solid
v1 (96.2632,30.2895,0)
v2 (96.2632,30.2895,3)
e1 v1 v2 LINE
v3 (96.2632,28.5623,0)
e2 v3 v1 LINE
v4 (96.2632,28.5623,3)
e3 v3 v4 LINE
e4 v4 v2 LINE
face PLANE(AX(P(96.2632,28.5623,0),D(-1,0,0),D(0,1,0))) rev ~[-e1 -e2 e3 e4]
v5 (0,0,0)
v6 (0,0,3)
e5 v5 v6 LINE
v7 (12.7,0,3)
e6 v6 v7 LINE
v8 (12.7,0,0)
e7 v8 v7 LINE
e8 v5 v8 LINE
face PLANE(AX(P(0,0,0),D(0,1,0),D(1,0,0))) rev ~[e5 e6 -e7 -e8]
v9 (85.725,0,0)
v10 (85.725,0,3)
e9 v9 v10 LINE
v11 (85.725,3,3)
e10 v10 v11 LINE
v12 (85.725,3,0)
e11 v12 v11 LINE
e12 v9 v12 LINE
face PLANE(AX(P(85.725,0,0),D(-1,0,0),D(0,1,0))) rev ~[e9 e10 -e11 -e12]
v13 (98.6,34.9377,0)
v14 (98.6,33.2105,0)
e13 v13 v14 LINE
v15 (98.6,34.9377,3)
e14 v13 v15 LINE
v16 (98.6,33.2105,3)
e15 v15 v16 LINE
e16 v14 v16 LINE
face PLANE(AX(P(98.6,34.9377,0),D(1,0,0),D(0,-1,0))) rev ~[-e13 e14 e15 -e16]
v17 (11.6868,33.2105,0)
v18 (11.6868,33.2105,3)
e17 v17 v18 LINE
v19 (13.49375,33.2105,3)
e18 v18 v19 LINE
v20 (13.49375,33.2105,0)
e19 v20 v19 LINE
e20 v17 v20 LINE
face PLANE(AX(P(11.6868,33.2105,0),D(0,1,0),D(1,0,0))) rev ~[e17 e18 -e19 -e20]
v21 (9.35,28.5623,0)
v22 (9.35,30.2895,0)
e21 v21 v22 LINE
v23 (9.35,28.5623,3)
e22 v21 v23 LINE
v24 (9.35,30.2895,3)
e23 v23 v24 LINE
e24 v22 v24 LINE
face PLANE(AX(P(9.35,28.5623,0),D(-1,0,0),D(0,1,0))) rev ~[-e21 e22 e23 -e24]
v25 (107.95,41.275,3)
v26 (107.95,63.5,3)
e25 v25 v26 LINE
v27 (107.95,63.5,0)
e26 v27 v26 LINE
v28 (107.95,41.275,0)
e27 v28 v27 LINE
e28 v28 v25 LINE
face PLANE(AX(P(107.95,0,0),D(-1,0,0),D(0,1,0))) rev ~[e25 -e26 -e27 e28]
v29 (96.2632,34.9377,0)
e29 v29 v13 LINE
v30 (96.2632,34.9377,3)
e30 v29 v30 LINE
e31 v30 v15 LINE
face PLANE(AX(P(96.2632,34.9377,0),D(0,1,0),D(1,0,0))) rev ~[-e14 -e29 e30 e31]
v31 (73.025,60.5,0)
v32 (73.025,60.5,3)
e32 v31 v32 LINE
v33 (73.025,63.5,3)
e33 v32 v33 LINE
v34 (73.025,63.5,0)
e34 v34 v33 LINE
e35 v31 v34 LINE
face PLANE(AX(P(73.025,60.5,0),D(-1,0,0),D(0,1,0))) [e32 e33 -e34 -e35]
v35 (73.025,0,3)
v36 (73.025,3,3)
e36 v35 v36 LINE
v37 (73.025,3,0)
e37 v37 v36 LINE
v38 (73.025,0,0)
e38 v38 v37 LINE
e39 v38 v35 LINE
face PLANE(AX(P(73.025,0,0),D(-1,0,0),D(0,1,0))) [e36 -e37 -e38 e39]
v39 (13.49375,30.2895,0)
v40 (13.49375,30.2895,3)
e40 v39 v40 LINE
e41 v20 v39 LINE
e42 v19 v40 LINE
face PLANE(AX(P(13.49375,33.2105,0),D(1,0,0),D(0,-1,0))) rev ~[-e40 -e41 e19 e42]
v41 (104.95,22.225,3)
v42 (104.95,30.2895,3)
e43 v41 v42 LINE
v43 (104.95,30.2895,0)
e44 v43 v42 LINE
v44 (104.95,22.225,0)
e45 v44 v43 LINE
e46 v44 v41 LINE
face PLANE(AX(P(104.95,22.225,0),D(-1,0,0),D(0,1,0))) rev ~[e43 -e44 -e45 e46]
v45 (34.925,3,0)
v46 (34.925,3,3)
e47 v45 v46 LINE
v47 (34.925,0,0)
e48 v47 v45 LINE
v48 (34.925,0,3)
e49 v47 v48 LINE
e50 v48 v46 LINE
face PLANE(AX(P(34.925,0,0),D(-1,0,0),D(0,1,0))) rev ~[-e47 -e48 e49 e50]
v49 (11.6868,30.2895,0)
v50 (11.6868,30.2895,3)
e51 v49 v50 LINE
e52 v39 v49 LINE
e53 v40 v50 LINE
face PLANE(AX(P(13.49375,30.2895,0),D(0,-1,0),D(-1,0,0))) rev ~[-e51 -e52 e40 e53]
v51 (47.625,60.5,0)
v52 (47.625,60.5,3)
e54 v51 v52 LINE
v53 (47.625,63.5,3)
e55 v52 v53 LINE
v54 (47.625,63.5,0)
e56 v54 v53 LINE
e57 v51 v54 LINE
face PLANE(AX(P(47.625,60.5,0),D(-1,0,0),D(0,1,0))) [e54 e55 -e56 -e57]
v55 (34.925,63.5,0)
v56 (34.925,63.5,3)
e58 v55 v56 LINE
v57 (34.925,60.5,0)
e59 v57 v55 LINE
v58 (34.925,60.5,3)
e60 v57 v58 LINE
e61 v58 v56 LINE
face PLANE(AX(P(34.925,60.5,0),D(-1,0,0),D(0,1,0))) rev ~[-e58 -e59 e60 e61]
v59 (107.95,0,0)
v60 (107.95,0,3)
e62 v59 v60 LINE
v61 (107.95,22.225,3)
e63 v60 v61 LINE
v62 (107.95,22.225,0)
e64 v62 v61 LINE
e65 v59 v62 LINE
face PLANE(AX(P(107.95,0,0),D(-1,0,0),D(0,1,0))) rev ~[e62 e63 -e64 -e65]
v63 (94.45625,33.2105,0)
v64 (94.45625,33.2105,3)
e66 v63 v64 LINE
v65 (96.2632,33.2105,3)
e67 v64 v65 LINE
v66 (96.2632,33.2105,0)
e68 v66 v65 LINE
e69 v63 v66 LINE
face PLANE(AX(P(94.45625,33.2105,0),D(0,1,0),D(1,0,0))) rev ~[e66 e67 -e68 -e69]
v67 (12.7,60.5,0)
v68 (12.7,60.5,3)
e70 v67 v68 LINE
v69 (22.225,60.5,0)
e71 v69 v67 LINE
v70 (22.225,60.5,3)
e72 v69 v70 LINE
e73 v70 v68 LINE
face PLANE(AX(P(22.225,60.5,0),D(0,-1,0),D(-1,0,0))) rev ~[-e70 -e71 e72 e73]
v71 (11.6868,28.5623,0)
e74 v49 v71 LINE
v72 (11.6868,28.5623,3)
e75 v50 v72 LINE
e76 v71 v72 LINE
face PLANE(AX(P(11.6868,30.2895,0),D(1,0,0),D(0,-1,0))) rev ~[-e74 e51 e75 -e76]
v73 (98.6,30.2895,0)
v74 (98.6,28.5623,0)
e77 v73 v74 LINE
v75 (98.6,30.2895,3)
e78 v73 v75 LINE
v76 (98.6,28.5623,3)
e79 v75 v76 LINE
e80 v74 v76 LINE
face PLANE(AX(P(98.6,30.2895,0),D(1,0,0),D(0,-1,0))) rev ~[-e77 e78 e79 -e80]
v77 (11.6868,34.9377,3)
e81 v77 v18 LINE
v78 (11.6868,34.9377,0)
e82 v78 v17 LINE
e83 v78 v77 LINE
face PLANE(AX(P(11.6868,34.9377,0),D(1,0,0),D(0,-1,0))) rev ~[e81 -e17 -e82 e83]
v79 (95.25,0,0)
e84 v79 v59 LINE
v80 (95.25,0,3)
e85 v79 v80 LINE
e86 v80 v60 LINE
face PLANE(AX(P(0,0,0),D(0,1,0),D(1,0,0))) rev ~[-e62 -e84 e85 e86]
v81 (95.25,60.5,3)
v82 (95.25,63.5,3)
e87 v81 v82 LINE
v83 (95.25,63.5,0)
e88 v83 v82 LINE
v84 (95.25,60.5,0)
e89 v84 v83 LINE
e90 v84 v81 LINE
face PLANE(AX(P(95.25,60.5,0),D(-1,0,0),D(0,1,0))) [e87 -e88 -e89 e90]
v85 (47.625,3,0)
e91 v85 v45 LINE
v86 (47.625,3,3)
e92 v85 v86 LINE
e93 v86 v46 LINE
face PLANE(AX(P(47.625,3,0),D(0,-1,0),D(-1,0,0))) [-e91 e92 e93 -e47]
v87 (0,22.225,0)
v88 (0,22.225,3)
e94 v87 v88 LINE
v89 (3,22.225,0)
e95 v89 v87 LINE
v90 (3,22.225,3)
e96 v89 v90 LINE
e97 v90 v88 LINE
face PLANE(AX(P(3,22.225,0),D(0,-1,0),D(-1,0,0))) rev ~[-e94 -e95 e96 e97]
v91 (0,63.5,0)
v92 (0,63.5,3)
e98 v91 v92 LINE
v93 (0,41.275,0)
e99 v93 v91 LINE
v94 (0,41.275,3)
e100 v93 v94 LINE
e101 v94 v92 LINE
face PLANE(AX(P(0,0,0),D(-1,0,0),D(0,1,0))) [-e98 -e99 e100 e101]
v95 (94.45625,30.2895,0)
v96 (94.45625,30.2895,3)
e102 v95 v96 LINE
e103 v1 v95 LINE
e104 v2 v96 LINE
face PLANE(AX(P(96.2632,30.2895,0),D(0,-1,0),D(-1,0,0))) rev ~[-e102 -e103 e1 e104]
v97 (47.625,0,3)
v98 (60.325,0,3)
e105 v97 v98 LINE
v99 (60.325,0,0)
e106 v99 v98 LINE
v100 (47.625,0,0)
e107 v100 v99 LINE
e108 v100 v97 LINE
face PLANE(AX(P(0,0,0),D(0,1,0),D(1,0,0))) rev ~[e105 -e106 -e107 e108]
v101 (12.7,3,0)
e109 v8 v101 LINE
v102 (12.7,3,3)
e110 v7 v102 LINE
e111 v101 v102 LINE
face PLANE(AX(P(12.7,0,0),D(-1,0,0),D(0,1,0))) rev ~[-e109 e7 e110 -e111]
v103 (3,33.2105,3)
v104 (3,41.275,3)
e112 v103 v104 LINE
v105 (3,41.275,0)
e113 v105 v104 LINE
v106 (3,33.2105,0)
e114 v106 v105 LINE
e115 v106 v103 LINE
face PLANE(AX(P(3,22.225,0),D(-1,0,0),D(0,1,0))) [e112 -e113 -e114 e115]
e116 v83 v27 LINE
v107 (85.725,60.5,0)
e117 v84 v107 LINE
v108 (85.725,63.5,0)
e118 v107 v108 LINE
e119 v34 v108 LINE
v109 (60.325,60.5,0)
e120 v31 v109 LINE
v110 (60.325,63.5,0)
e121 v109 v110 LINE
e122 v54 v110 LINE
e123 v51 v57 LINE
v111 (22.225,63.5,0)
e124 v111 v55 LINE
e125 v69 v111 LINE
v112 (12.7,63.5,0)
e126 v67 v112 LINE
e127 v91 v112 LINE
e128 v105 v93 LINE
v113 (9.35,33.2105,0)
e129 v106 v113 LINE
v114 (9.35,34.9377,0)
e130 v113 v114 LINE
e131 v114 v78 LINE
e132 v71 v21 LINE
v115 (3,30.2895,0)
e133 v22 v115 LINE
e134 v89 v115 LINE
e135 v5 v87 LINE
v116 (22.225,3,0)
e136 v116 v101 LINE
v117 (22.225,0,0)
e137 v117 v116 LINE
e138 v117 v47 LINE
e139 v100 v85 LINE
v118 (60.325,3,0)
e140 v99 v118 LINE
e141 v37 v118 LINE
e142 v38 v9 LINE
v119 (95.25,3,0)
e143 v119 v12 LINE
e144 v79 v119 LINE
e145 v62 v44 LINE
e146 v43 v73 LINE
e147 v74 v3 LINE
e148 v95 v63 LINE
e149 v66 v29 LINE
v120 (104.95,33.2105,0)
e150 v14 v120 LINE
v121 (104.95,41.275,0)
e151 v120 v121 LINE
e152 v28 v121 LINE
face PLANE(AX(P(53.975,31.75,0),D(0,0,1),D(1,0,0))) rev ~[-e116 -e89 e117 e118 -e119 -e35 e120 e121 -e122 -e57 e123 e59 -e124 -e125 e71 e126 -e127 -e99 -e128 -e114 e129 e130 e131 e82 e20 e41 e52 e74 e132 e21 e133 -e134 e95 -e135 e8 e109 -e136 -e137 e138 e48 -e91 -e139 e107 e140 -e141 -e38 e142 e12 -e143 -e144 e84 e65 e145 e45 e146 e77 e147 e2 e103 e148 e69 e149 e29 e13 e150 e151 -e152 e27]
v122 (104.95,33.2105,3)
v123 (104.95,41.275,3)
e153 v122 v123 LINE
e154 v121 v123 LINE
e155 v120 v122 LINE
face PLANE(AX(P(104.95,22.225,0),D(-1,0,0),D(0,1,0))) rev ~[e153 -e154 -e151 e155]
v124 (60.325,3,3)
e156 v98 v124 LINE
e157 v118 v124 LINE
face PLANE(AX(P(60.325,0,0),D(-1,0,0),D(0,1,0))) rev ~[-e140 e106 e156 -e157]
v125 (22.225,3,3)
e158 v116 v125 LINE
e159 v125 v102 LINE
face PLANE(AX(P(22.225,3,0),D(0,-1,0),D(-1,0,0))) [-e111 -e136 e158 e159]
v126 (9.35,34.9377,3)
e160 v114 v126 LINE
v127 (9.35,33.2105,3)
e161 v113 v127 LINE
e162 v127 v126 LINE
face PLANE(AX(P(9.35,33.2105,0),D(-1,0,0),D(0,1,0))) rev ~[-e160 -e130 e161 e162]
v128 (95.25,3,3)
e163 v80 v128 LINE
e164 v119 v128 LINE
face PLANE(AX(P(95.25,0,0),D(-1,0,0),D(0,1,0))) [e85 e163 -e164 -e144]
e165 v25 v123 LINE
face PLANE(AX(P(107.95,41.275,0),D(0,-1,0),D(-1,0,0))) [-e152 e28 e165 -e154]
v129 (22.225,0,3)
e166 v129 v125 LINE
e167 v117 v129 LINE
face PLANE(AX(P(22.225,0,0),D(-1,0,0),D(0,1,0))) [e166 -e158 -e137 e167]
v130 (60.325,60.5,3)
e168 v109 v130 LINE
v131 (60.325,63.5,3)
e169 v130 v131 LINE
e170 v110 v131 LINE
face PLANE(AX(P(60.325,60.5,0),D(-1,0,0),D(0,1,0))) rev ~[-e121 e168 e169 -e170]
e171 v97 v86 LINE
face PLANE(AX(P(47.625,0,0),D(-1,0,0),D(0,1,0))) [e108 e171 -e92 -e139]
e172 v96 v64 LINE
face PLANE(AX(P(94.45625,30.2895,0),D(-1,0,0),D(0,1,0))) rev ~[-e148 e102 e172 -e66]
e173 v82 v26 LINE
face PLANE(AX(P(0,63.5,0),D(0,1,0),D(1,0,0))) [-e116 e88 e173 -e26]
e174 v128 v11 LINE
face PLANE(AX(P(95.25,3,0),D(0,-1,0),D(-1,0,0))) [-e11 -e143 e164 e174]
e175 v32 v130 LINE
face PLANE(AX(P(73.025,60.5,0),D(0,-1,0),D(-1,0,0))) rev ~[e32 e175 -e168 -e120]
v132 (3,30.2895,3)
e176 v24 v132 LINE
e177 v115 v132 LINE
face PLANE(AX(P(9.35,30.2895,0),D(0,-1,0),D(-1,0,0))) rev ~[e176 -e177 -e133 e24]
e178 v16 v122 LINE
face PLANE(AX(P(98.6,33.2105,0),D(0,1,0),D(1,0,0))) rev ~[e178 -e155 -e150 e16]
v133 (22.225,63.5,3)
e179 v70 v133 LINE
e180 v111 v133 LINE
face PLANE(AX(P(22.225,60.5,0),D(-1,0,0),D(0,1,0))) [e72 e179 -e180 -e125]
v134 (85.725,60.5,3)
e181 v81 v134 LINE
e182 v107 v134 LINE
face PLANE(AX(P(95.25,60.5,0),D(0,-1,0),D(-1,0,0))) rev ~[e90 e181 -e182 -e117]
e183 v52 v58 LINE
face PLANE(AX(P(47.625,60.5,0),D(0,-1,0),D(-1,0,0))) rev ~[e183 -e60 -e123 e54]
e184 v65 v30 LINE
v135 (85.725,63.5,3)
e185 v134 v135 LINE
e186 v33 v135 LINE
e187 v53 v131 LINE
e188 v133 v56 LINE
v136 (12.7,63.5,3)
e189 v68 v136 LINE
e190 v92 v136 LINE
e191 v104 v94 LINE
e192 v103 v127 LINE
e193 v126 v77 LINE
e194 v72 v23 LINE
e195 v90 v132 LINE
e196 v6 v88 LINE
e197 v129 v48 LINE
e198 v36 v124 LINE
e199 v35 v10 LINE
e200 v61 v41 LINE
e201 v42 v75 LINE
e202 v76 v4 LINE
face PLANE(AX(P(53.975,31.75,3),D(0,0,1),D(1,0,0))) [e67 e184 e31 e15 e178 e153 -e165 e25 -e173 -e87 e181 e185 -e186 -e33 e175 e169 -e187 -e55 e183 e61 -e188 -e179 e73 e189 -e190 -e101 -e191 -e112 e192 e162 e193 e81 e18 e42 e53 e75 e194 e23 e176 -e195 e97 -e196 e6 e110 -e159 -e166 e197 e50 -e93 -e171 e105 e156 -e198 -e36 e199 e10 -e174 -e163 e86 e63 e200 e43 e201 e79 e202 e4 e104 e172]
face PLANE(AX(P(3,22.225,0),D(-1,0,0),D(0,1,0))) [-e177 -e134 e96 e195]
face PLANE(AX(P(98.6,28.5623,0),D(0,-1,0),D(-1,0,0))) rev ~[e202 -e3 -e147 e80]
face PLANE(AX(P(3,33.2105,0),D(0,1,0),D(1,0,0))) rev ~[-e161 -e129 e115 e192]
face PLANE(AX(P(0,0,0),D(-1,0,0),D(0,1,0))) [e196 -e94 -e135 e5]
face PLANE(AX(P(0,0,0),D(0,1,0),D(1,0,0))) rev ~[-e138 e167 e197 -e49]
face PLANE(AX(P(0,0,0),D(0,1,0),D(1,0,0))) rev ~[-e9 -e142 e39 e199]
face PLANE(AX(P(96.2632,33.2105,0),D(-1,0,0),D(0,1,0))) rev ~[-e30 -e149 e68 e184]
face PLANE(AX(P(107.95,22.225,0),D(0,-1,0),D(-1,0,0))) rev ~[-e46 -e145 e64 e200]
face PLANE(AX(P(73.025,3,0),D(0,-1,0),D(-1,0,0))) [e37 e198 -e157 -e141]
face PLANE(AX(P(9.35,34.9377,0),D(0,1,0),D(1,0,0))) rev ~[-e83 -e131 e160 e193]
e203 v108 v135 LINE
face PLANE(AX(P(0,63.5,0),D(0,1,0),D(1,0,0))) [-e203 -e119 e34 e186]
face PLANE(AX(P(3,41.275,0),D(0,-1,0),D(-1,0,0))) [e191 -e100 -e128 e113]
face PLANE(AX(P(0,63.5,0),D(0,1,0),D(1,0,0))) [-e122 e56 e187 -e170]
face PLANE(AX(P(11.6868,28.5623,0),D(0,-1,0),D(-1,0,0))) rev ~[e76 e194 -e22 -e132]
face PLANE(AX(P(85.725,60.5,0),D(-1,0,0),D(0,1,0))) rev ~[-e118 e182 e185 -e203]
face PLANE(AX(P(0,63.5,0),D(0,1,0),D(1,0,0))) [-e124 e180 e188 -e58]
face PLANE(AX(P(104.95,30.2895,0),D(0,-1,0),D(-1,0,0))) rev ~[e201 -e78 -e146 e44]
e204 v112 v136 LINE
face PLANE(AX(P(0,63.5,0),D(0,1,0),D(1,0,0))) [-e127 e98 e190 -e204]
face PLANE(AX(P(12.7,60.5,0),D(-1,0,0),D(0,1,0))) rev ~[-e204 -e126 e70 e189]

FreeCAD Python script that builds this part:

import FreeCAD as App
import Part
import Sketcher

V = App.Vector
Q = App.Units.Quantity

doc = App.newDocument("Part")
body = doc.addObject("PartDesign::Body", "Body")

sketch1 = doc.addObject("Sketcher::SketchObject", "Sketch")
body.addObject(sketch1)
sketch1.AttachmentSupport = (doc.XY_Plane, [""])
sketch1.MapMode = "FlatFace"
sketch1.addGeometry([
    Part.LineSegment(V(0, 64, 0), V(0, 0, 0)),
    Part.LineSegment(V(0, 0, 0), V(108, 0, 0)),
    Part.LineSegment(V(108, 0, 0), V(108, 64, 0)),
    Part.LineSegment(V(108, 64, 0), V(0, 64, 0)),
], False)
sketch1.addConstraint([
    Sketcher.Constraint("Coincident", 0, 2, 1, 1),
    Sketcher.Constraint("Coincident", 1, 2, 2, 1),
    Sketcher.Constraint("Coincident", 2, 2, 3, 1),
    Sketcher.Constraint("Coincident", 3, 2, 0, 1),
    Sketcher.Constraint("Vertical", 0),
    Sketcher.Constraint("Horizontal", 1),
    Sketcher.Constraint("Vertical", 2),
    Sketcher.Constraint("Horizontal", 3),
    Sketcher.Constraint("Coincident", 0, 2, -1, 1),
    Sketcher.Constraint("DistanceY", 0, 2, 0, 1, Q("2.5 in")),
    Sketcher.Constraint("DistanceX", 1, 1, 1, 2, Q("4.25 in")),
])
pad1 = doc.addObject("PartDesign::Pad", "Pad")
body.addObject(pad1)
pad1.Profile = sketch1
pad1.Length = 3

sketch2 = doc.addObject("Sketcher::SketchObject", "Sketch001")
body.addObject(sketch2)
sketch2.AttachmentSupport = (doc.XY_Plane, [""])
sketch2.MapMode = "FlatFace"
sketch2.addGeometry([
    Part.LineSegment(V(73, 3, 0), V(73, 0, 0)),
    Part.LineSegment(V(73, 0, 0), V(60.3, 0, 0)),
    Part.LineSegment(V(60.3, 0, 0), V(60.3, 3, 0)),
    Part.LineSegment(V(60.3, 3, 0), V(73, 3, 0)),
], False)
sketch2.addConstraint([
    Sketcher.Constraint("Coincident", 0, 2, 1, 1),
    Sketcher.Constraint("Coincident", 1, 2, 2, 1),
    Sketcher.Constraint("Coincident", 2, 2, 3, 1),
    Sketcher.Constraint("Coincident", 3, 2, 0, 1),
    Sketcher.Constraint("Vertical", 0),
    Sketcher.Constraint("Horizontal", 1),
    Sketcher.Constraint("Vertical", 2),
    Sketcher.Constraint("Horizontal", 3),
    Sketcher.Constraint("PointOnObject", 0, 2, -1),
    Sketcher.Constraint("DistanceX", 1, 2, 1, 1, Q("0.5 in")),
    Sketcher.Constraint("DistanceX", -1, 1, 0, 2, Q("2.875 in")),
    Sketcher.Constraint("DistanceY", 0, 2, 0, 1, Q("3 mm")),
])
pocket1 = doc.addObject("PartDesign::Pocket", "Pocket")
body.addObject(pocket1)
pocket1.Profile = sketch2
pocket1.Type = "UpToFirst"
pocket1.Reversed = True

sketch3 = doc.addObject("Sketcher::SketchObject", "Sketch002")
body.addObject(sketch3)
sketch3.AttachmentSupport = (doc.XY_Plane, [""])
sketch3.MapMode = "FlatFace"
sketch3.addGeometry([
    Part.LineSegment(V(22.2, 3, 0), V(22.2, 0, 0)),
    Part.LineSegment(V(22.2, 0, 0), V(12.7, 0, 0)),
    Part.LineSegment(V(12.7, 0, 0), V(12.7, 3, 0)),
    Part.LineSegment(V(12.7, 3, 0), V(22.2, 3, 0)),
], False)
sketch3.addConstraint([
    Sketcher.Constraint("Coincident", 0, 2, 1, 1),
    Sketcher.Constraint("Coincident", 1, 2, 2, 1),
    Sketcher.Constraint("Coincident", 2, 2, 3, 1),
    Sketcher.Constraint("Coincident", 3, 2, 0, 1),
    Sketcher.Constraint("Vertical", 0),
    Sketcher.Constraint("Horizontal", 1),
    Sketcher.Constraint("Vertical", 2),
    Sketcher.Constraint("Horizontal", 3),
    Sketcher.Constraint("PointOnObject", 0, 2, -1),
    Sketcher.Constraint("DistanceX", -1, 1, 1, 2, Q("0.5 in")),
    Sketcher.Constraint("DistanceX", 1, 2, 1, 1, Q("0.375 in")),
    Sketcher.Constraint("DistanceY", 0, 2, 0, 1, Q("3 mm")),
])
pocket2 = doc.addObject("PartDesign::Pocket", "Pocket001")
body.addObject(pocket2)
pocket2.Profile = sketch3
pocket2.Type = "UpToFirst"
pocket2.Reversed = True

sketch4 = doc.addObject("Sketcher::SketchObject", "Sketch003")
body.addObject(sketch4)
sketch4.AttachmentSupport = (doc.XY_Plane, [""])
sketch4.MapMode = "FlatFace"
sketch4.addGeometry([
    Part.LineSegment(V(95.2, 3, 0), V(95.2, 0, 0)),
    Part.LineSegment(V(95.2, 0, 0), V(85.7, 0, 0)),
    Part.LineSegment(V(85.7, 0, 0), V(85.7, 3, 0)),
    Part.LineSegment(V(85.7, 3, 0), V(95.2, 3, 0)),
], False)
sketch4.addConstraint([
    Sketcher.Constraint("Coincident", 0, 2, 1, 1),
    Sketcher.Constraint("Coincident", 1, 2, 2, 1),
    Sketcher.Constraint("Coincident", 2, 2, 3, 1),
    Sketcher.Constraint("Coincident", 3, 2, 0, 1),
    Sketcher.Constraint("Vertical", 0),
    Sketcher.Constraint("Horizontal", 1),
    Sketcher.Constraint("Vertical", 2),
    Sketcher.Constraint("Horizontal", 3),
    Sketcher.Constraint("PointOnObject", 0, 2, -1),
    Sketcher.Constraint("DistanceX", 1, 2, 1, 1, Q("0.375 in")),
    Sketcher.Constraint("DistanceX", -1, 1, 0, 2, Q("3.75 in")),
    Sketcher.Constraint("DistanceY", 0, 2, 0, 1, Q("3 mm")),
])
pocket3 = doc.addObject("PartDesign::Pocket", "Pocket002")
body.addObject(pocket3)
pocket3.Profile = sketch4
pocket3.Type = "UpToFirst"
pocket3.Reversed = True

sketch5 = doc.addObject("Sketcher::SketchObject", "Sketch004")
body.addObject(sketch5)
sketch5.AttachmentSupport = (doc.XY_Plane, [""])
sketch5.MapMode = "FlatFace"
sketch5.addGeometry([
    Part.LineSegment(V(47.6, 3, 0), V(47.6, 0, 0)),
    Part.LineSegment(V(47.6, 0, 0), V(34.9, 0, 0)),
    Part.LineSegment(V(34.9, 0, 0), V(34.9, 3, 0)),
    Part.LineSegment(V(34.9, 3, 0), V(47.6, 3, 0)),
], False)
sketch5.addConstraint([
    Sketcher.Constraint("Coincident", 0, 2, 1, 1),
    Sketcher.Constraint("Coincident", 1, 2, 2, 1),
    Sketcher.Constraint("Coincident", 2, 2, 3, 1),
    Sketcher.Constraint("Coincident", 3, 2, 0, 1),
    Sketcher.Constraint("Vertical", 0),
    Sketcher.Constraint("Horizontal", 1),
    Sketcher.Constraint("Vertical", 2),
    Sketcher.Constraint("Horizontal", 3),
    Sketcher.Constraint("PointOnObject", 0, 2, -1),
    Sketcher.Constraint("DistanceX", 1, 2, 1, 1, Q("0.5 in")),
    Sketcher.Constraint("DistanceX", -1, 1, 0, 2, Q("1.875 in")),
    Sketcher.Constraint("DistanceY", 0, 2, 0, 1, Q("3 mm")),
])
pocket4 = doc.addObject("PartDesign::Pocket", "Pocket003")
body.addObject(pocket4)
pocket4.Profile = sketch5
pocket4.Type = "UpToFirst"
pocket4.Reversed = True

sketch6 = doc.addObject("Sketcher::SketchObject", "Sketch005")
body.addObject(sketch6)
sketch6.AttachmentSupport = (doc.XY_Plane, [""])
sketch6.MapMode = "FlatFace"
sketch6.addGeometry([
    Part.LineSegment(V(47.6, 63.5, 0), V(47.6, 60.5, 0)),
    Part.LineSegment(V(47.6, 60.5, 0), V(34.9, 60.5, 0)),
    Part.LineSegment(V(34.9, 60.5, 0), V(34.9, 63.5, 0)),
    Part.LineSegment(V(34.9, 63.5, 0), V(47.6, 63.5, 0)),
], False)
sketch6.addConstraint([
    Sketcher.Constraint("Coincident", 0, 2, 1, 1),
    Sketcher.Constraint("Coincident", 1, 2, 2, 1),
    Sketcher.Constraint("Coincident", 2, 2, 3, 1),
    Sketcher.Constraint("Coincident", 3, 2, 0, 1),
    Sketcher.Constraint("Vertical", 0),
    Sketcher.Constraint("Horizontal", 1),
    Sketcher.Constraint("Vertical", 2),
    Sketcher.Constraint("Horizontal", 3),
    Sketcher.Constraint("DistanceX", 1, 2, 1, 1, Q("0.5 in")),
    Sketcher.Constraint("DistanceY", -1, 1, 2, 2, Q("2.5 in")),
    Sketcher.Constraint("DistanceX", -1, 1, 0, 2, Q("1.875 in")),
    Sketcher.Constraint("DistanceY", 0, 2, 0, 1, Q("3 mm")),
])
pocket5 = doc.addObject("PartDesign::Pocket", "Pocket004")
body.addObject(pocket5)
pocket5.Profile = sketch6
pocket5.Type = "UpToFirst"
pocket5.Reversed = True

sketch7 = doc.addObject("Sketcher::SketchObject", "Sketch006")
body.addObject(sketch7)
sketch7.AttachmentSupport = (doc.XY_Plane, [""])
sketch7.MapMode = "FlatFace"
sketch7.addGeometry([
    Part.LineSegment(V(73, 63.5, 0), V(73, 60.5, 0)),
    Part.LineSegment(V(73, 60.5, 0), V(60.3, 60.5, 0)),
    Part.LineSegment(V(60.3, 60.5, 0), V(60.3, 63.5, 0)),
    Part.LineSegment(V(60.3, 63.5, 0), V(73, 63.5, 0)),
], False)
sketch7.addConstraint([
    Sketcher.Constraint("Coincident", 0, 2, 1, 1),
    Sketcher.Constraint("Coincident", 1, 2, 2, 1),
    Sketcher.Constraint("Coincident", 2, 2, 3, 1),
    Sketcher.Constraint("Coincident", 3, 2, 0, 1),
    Sketcher.Constraint("Vertical", 0),
    Sketcher.Constraint("Horizontal", 1),
    Sketcher.Constraint("Vertical", 2),
    Sketcher.Constraint("Horizontal", 3),
    Sketcher.Constraint("DistanceX", 1, 2, 1, 1, Q("0.5 in")),
    Sketcher.Constraint("DistanceY", -1, 1, 2, 2, Q("2.5 in")),
    Sketcher.Constraint("DistanceX", -1, 1, 0, 2, Q("2.875 in")),
    Sketcher.Constraint("DistanceY", 0, 2, 0, 1, Q("3 mm")),
])
pocket6 = doc.addObject("PartDesign::Pocket", "Pocket005")
body.addObject(pocket6)
pocket6.Profile = sketch7
pocket6.Type = "UpToFirst"
pocket6.Reversed = True

sketch8 = doc.addObject("Sketcher::SketchObject", "Sketch007")
body.addObject(sketch8)
sketch8.AttachmentSupport = (doc.XY_Plane, [""])
sketch8.MapMode = "FlatFace"
sketch8.addGeometry([
    Part.LineSegment(V(22.2, 63.5, 0), V(22.2, 60.5, 0)),
    Part.LineSegment(V(22.2, 60.5, 0), V(12.7, 60.5, 0)),
    Part.LineSegment(V(12.7, 60.5, 0), V(12.7, 63.5, 0)),
    Part.LineSegment(V(12.7, 63.5, 0), V(22.2, 63.5, 0)),
], False)
sketch8.addConstraint([
    Sketcher.Constraint("Coincident", 0, 2, 1, 1),
    Sketcher.Constraint("Coincident", 1, 2, 2, 1),
    Sketcher.Constraint("Coincident", 2, 2, 3, 1),
    Sketcher.Constraint("Coincident", 3, 2, 0, 1),
    Sketcher.Constraint("Vertical", 0),
    Sketcher.Constraint("Horizontal", 1),
    Sketcher.Constraint("Vertical", 2),
    Sketcher.Constraint("Horizontal", 3),
    Sketcher.Constraint("DistanceX", -1, 1, 1, 2, Q("0.5 in")),
    Sketcher.Constraint("DistanceY", -1, 1, 2, 2, Q("2.5 in")),
    Sketcher.Constraint("DistanceX", 1, 2, 1, 1, Q("0.375 in")),
    Sketcher.Constraint("DistanceY", 0, 2, 0, 1, Q("3 mm")),
])
pocket7 = doc.addObject("PartDesign::Pocket", "Pocket006")
body.addObject(pocket7)
pocket7.Profile = sketch8
pocket7.Type = "UpToFirst"
pocket7.Reversed = True

sketch9 = doc.addObject("Sketcher::SketchObject", "Sketch008")
body.addObject(sketch9)
sketch9.AttachmentSupport = (doc.XY_Plane, [""])
sketch9.MapMode = "FlatFace"
sketch9.addGeometry([
    Part.LineSegment(V(108, 41.3, 0), V(108, 22.2, 0)),
    Part.LineSegment(V(108, 22.2, 0), V(105, 22.2, 0)),
    Part.LineSegment(V(105, 22.2, 0), V(105, 41.3, 0)),
    Part.LineSegment(V(105, 41.3, 0), V(108, 41.3, 0)),
], False)
sketch9.addConstraint([
    Sketcher.Constraint("Coincident", 0, 2, 1, 1),
    Sketcher.Constraint("Coincident", 1, 2, 2, 1),
    Sketcher.Constraint("Coincident", 2, 2, 3, 1),
    Sketcher.Constraint("Coincident", 3, 2, 0, 1),
    Sketcher.Constraint("Vertical", 0),
    Sketcher.Constraint("Horizontal", 1),
    Sketcher.Constraint("Vertical", 2),
    Sketcher.Constraint("Horizontal", 3),
    Sketcher.Constraint("DistanceY", 0, 2, 0, 1, Q("0.75 in")),
    Sketcher.Constraint("DistanceX", -1, 1, 0, 2, Q("4.25 in")),
    Sketcher.Constraint("DistanceY", -1, 1, 0, 2, Q("0.875 in")),
    Sketcher.Constraint("DistanceX", 1, 2, 1, 1, Q("3 mm")),
])
pocket8 = doc.addObject("PartDesign::Pocket", "Pocket007")
body.addObject(pocket8)
pocket8.Profile = sketch9
pocket8.Type = "UpToFirst"
pocket8.Reversed = True

sketch10 = doc.addObject("Sketcher::SketchObject", "Sketch009")
body.addObject(sketch10)
sketch10.AttachmentSupport = (doc.XY_Plane, [""])
sketch10.MapMode = "FlatFace"
sketch10.addGeometry([
    Part.LineSegment(V(3, 41.3, 0), V(3, 22.2, 0)),
    Part.LineSegment(V(3, 22.2, 0), V(0, 22.2, 0)),
    Part.LineSegment(V(0, 22.2, 0), V(0, 41.3, 0)),
    Part.LineSegment(V(0, 41.3, 0), V(3, 41.3, 0)),
], False)
sketch10.addConstraint([
    Sketcher.Constraint("Coincident", 0, 2, 1, 1),
    Sketcher.Constraint("Coincident", 1, 2, 2, 1),
    Sketcher.Constraint("Coincident", 2, 2, 3, 1),
    Sketcher.Constraint("Coincident", 3, 2, 0, 1),
    Sketcher.Constraint("Vertical", 0),
    Sketcher.Constraint("Horizontal", 1),
    Sketcher.Constraint("Vertical", 2),
    Sketcher.Constraint("Horizontal", 3),
    Sketcher.Constraint("PointOnObject", 1, 2, -2),
    Sketcher.Constraint("DistanceY", 0, 2, 0, 1, Q("0.75 in")),
    Sketcher.Constraint("DistanceY", -1, 1, 0, 2, Q("0.875 in")),
    Sketcher.Constraint("DistanceX", 1, 2, 1, 1, Q("3 mm")),
])
pocket9 = doc.addObject("PartDesign::Pocket", "Pocket008")
body.addObject(pocket9)
pocket9.Profile = sketch10
pocket9.Type = "UpToFirst"
pocket9.Reversed = True

sketch11 = doc.addObject("Sketcher::SketchObject", "Sketch010")
body.addObject(sketch11)
sketch11.AttachmentSupport = (doc.XY_Plane, [""])
sketch11.MapMode = "FlatFace"
sketch11.addGeometry([
    Part.LineSegment(V(95.2, 63.5, 0), V(95.2, 60.5, 0)),
    Part.LineSegment(V(95.2, 60.5, 0), V(85.7, 60.5, 0)),
    Part.LineSegment(V(85.7, 60.5, 0), V(85.7, 63.5, 0)),
    Part.LineSegment(V(85.7, 63.5, 0), V(95.2, 63.5, 0)),
], False)
sketch11.addConstraint([
    Sketcher.Constraint("Coincident", 0, 2, 1, 1),
    Sketcher.Constraint("Coincident", 1, 2, 2, 1),
    Sketcher.Constraint("Coincident", 2, 2, 3, 1),
    Sketcher.Constraint("Coincident", 3, 2, 0, 1),
    Sketcher.Constraint("Vertical", 0),
    Sketcher.Constraint("Horizontal", 1),
    Sketcher.Constraint("Vertical", 2),
    Sketcher.Constraint("Horizontal", 3),
    Sketcher.Constraint("DistanceY", -1, 1, 2, 2, Q("2.5 in")),
    Sketcher.Constraint("DistanceX", 1, 2, 1, 1, Q("0.375 in")),
    Sketcher.Constraint("DistanceX", -1, 1, 0, 2, Q("3.75 in")),
    Sketcher.Constraint("DistanceY", 0, 2, 0, 1, Q("3 mm")),
])
pocket10 = doc.addObject("PartDesign::Pocket", "Pocket009")
body.addObject(pocket10)
pocket10.Profile = sketch11
pocket10.Type = "UpToFirst"
pocket10.Reversed = True

sketch12 = doc.addObject("Sketcher::SketchObject", "Sketch011")
body.addObject(sketch12)
sketch12.AttachmentSupport = (doc.XY_Plane, [""])
sketch12.MapMode = "FlatFace"
sketch12.addGeometry([
    Part.LineSegment(V(3, 33.2, 0), V(9.3, 33.2, 0)),
    Part.LineSegment(V(9.3, 33.2, 0), V(9.3, 34.9, 0)),
    Part.LineSegment(V(9.3, 34.9, 0), V(11.7, 34.9, 0)),
    Part.LineSegment(V(11.7, 34.9, 0), V(11.7, 33.2, 0)),
    Part.LineSegment(V(11.7, 33.2, 0), V(13.5, 33.2, 0)),
    Part.LineSegment(V(13.5, 33.2, 0), V(13.5, 30.3, 0)),
    Part.LineSegment(V(13.5, 30.3, 0), V(11.7, 30.3, 0)),
    Part.LineSegment(V(11.7, 30.3, 0), V(11.7, 28.6, 0)),
    Part.LineSegment(V(11.7, 28.6, 0), V(9.3, 28.6, 0)),
    Part.LineSegment(V(9.3, 28.6, 0), V(9.3, 30.3, 0)),
    Part.LineSegment(V(9.3, 30.3, 0), V(3, 30.3, 0)),
    Part.LineSegment(V(3, 30.3, 0), V(3, 33.2, 0)),
], False)
sketch12.addConstraint([
    Sketcher.Constraint("Coincident", 0, 2, 1, 1),
    Sketcher.Constraint("Coincident", 1, 2, 2, 1),
    Sketcher.Constraint("Coincident", 2, 2, 3, 1),
    Sketcher.Constraint("Coincident", 3, 2, 4, 1),
    Sketcher.Constraint("Coincident", 4, 2, 5, 1),
    Sketcher.Constraint("Coincident", 5, 2, 6, 1),
    Sketcher.Constraint("Coincident", 6, 2, 7, 1),
    Sketcher.Constraint("Coincident", 7, 2, 8, 1),
    Sketcher.Constraint("Coincident", 8, 2, 9, 1),
    Sketcher.Constraint("Coincident", 9, 2, 10, 1),
    Sketcher.Constraint("Coincident", 10, 2, 11, 1),
    Sketcher.Constraint("Coincident", 11, 2, 0, 1),
    Sketcher.Constraint("Horizontal", 0),
    Sketcher.Constraint("Vertical", 1),
    Sketcher.Constraint("Horizontal", 2),
    Sketcher.Constraint("Vertical", 3),
    Sketcher.Constraint("Horizontal", 4),
    Sketcher.Constraint("Vertical", 5),
    Sketcher.Constraint("Horizontal", 6),
    Sketcher.Constraint("Vertical", 7),
    Sketcher.Constraint("Horizontal", 8),
    Sketcher.Constraint("Vertical", 9),
    Sketcher.Constraint("Horizontal", 10),
    Sketcher.Constraint("Vertical", 11),
    Sketcher.Constraint("Horizontal", 0, 2, 3, 2),
    Sketcher.Constraint("Horizontal", 6, 2, 9, 2),
    Sketcher.Constraint("Vertical", 3, 2, 6, 2),
    Sketcher.Constraint("Vertical", 1, 2, 8, 2),
    Sketcher.Constraint("Equal", 3, 7),
    Sketcher.Constraint("DistanceX", 0, 1, 0, 2, Q("0.25 in")),
    Sketcher.Constraint("DistanceX", 2, 1, 2, 2, Q("0.092 in")),
    Sketcher.Constraint("DistanceY", 1, 1, 1, 2, Q("0.068 in")),
    Sketcher.Constraint("DistanceY", 5, 2, 5, 1, Q("0.115 in")),
    Sketcher.Constraint("DistanceX", -1, 1, 4, 2, Q("0.53125 in")),
    Sketcher.Constraint("DistanceY", -1, 1, 0, 2, Q("1.3075 in")),
    Sketcher.Constraint("DistanceX", 4, 1, 4, 2, Q("1.80695 mm")),
])
pocket11 = doc.addObject("PartDesign::Pocket", "Pocket010")
body.addObject(pocket11)
pocket11.Profile = sketch12
pocket11.Type = "UpToFirst"
pocket11.Reversed = True

sketch13 = doc.addObject("Sketcher::SketchObject", "Sketch012")
body.addObject(sketch13)
sketch13.AttachmentSupport = (doc.XY_Plane, [""])
sketch13.MapMode = "FlatFace"
sketch13.addGeometry([
    Part.LineSegment(V(94.5, 30.3, 0), V(94.5, 33.2, 0)),
    Part.LineSegment(V(94.5, 33.2, 0), V(96.3, 33.2, 0)),
    Part.LineSegment(V(96.3, 33.2, 0), V(96.3, 34.9, 0)),
    Part.LineSegment(V(96.3, 34.9, 0), V(98.6, 34.9, 0)),
    Part.LineSegment(V(98.6, 34.9, 0), V(98.6, 33.2, 0)),
    Part.LineSegment(V(98.6, 33.2, 0), V(105, 33.2, 0)),
    Part.LineSegment(V(105, 33.2, 0), V(105, 30.3, 0)),
    Part.LineSegment(V(105, 30.3, 0), V(98.6, 30.3, 0)),
    Part.LineSegment(V(98.6, 30.3, 0), V(98.6, 28.6, 0)),
    Part.LineSegment(V(98.6, 28.6, 0), V(96.3, 28.6, 0)),
    Part.LineSegment(V(96.3, 28.6, 0), V(96.3, 30.3, 0)),
    Part.LineSegment(V(96.3, 30.3, 0), V(94.5, 30.3, 0)),
], False)
sketch13.addConstraint([
    Sketcher.Constraint("Coincident", 0, 2, 1, 1),
    Sketcher.Constraint("Coincident", 1, 2, 2, 1),
    Sketcher.Constraint("Coincident", 2, 2, 3, 1),
    Sketcher.Constraint("Coincident", 3, 2, 4, 1),
    Sketcher.Constraint("Coincident", 4, 2, 5, 1),
    Sketcher.Constraint("Coincident", 5, 2, 6, 1),
    Sketcher.Constraint("Coincident", 6, 2, 7, 1),
    Sketcher.Constraint("Coincident", 7, 2, 8, 1),
    Sketcher.Constraint("Coincident", 8, 2, 9, 1),
    Sketcher.Constraint("Coincident", 9, 2, 10, 1),
    Sketcher.Constraint("Coincident", 10, 2, 11, 1),
    Sketcher.Constraint("Coincident", 11, 2, 0, 1),
    Sketcher.Constraint("Vertical", 0),
    Sketcher.Constraint("Horizontal", 1),
    Sketcher.Constraint("Vertical", 2),
    Sketcher.Constraint("Horizontal", 3),
    Sketcher.Constraint("Vertical", 4),
    Sketcher.Constraint("Horizontal", 5),
    Sketcher.Constraint("Vertical", 6),
    Sketcher.Constraint("Horizontal", 7),
    Sketcher.Constraint("Vertical", 8),
    Sketcher.Constraint("Horizontal", 9),
    Sketcher.Constraint("Vertical", 10),
    Sketcher.Constraint("Horizontal", 11),
    Sketcher.Constraint("Horizontal", 1, 2, 4, 2),
    Sketcher.Constraint("Horizontal", 7, 2, 10, 2),
    Sketcher.Constraint("Vertical", 4, 2, 7, 2),
    Sketcher.Constraint("Vertical", 2, 2, 9, 2),
    Sketcher.Constraint("Equal", 4, 8),
    Sketcher.Constraint("DistanceX", 5, 1, 5, 2, Q("0.25 in")),
    Sketcher.Constraint("DistanceX", 3, 1, 3, 2, Q("0.092 in")),
    Sketcher.Constraint("DistanceY", 0, 1, 0, 2, Q("0.115 in")),
    Sketcher.Constraint("DistanceY", 2, 1, 2, 2, Q("0.068 in")),
    Sketcher.Constraint("DistanceX", -1, 1, 0, 2, Q("3.71875 in")),
    Sketcher.Constraint("DistanceY", -1, 1, 0, 2, Q("1.3075 in")),
    Sketcher.Constraint("DistanceX", 1, 1, 1, 2, Q("1.80695 mm")),
])
pocket12 = doc.addObject("PartDesign::Pocket", "Pocket011")
body.addObject(pocket12)
pocket12.Profile = sketch13
pocket12.Type = "UpToFirst"
pocket12.Reversed = True

doc.recompute()
